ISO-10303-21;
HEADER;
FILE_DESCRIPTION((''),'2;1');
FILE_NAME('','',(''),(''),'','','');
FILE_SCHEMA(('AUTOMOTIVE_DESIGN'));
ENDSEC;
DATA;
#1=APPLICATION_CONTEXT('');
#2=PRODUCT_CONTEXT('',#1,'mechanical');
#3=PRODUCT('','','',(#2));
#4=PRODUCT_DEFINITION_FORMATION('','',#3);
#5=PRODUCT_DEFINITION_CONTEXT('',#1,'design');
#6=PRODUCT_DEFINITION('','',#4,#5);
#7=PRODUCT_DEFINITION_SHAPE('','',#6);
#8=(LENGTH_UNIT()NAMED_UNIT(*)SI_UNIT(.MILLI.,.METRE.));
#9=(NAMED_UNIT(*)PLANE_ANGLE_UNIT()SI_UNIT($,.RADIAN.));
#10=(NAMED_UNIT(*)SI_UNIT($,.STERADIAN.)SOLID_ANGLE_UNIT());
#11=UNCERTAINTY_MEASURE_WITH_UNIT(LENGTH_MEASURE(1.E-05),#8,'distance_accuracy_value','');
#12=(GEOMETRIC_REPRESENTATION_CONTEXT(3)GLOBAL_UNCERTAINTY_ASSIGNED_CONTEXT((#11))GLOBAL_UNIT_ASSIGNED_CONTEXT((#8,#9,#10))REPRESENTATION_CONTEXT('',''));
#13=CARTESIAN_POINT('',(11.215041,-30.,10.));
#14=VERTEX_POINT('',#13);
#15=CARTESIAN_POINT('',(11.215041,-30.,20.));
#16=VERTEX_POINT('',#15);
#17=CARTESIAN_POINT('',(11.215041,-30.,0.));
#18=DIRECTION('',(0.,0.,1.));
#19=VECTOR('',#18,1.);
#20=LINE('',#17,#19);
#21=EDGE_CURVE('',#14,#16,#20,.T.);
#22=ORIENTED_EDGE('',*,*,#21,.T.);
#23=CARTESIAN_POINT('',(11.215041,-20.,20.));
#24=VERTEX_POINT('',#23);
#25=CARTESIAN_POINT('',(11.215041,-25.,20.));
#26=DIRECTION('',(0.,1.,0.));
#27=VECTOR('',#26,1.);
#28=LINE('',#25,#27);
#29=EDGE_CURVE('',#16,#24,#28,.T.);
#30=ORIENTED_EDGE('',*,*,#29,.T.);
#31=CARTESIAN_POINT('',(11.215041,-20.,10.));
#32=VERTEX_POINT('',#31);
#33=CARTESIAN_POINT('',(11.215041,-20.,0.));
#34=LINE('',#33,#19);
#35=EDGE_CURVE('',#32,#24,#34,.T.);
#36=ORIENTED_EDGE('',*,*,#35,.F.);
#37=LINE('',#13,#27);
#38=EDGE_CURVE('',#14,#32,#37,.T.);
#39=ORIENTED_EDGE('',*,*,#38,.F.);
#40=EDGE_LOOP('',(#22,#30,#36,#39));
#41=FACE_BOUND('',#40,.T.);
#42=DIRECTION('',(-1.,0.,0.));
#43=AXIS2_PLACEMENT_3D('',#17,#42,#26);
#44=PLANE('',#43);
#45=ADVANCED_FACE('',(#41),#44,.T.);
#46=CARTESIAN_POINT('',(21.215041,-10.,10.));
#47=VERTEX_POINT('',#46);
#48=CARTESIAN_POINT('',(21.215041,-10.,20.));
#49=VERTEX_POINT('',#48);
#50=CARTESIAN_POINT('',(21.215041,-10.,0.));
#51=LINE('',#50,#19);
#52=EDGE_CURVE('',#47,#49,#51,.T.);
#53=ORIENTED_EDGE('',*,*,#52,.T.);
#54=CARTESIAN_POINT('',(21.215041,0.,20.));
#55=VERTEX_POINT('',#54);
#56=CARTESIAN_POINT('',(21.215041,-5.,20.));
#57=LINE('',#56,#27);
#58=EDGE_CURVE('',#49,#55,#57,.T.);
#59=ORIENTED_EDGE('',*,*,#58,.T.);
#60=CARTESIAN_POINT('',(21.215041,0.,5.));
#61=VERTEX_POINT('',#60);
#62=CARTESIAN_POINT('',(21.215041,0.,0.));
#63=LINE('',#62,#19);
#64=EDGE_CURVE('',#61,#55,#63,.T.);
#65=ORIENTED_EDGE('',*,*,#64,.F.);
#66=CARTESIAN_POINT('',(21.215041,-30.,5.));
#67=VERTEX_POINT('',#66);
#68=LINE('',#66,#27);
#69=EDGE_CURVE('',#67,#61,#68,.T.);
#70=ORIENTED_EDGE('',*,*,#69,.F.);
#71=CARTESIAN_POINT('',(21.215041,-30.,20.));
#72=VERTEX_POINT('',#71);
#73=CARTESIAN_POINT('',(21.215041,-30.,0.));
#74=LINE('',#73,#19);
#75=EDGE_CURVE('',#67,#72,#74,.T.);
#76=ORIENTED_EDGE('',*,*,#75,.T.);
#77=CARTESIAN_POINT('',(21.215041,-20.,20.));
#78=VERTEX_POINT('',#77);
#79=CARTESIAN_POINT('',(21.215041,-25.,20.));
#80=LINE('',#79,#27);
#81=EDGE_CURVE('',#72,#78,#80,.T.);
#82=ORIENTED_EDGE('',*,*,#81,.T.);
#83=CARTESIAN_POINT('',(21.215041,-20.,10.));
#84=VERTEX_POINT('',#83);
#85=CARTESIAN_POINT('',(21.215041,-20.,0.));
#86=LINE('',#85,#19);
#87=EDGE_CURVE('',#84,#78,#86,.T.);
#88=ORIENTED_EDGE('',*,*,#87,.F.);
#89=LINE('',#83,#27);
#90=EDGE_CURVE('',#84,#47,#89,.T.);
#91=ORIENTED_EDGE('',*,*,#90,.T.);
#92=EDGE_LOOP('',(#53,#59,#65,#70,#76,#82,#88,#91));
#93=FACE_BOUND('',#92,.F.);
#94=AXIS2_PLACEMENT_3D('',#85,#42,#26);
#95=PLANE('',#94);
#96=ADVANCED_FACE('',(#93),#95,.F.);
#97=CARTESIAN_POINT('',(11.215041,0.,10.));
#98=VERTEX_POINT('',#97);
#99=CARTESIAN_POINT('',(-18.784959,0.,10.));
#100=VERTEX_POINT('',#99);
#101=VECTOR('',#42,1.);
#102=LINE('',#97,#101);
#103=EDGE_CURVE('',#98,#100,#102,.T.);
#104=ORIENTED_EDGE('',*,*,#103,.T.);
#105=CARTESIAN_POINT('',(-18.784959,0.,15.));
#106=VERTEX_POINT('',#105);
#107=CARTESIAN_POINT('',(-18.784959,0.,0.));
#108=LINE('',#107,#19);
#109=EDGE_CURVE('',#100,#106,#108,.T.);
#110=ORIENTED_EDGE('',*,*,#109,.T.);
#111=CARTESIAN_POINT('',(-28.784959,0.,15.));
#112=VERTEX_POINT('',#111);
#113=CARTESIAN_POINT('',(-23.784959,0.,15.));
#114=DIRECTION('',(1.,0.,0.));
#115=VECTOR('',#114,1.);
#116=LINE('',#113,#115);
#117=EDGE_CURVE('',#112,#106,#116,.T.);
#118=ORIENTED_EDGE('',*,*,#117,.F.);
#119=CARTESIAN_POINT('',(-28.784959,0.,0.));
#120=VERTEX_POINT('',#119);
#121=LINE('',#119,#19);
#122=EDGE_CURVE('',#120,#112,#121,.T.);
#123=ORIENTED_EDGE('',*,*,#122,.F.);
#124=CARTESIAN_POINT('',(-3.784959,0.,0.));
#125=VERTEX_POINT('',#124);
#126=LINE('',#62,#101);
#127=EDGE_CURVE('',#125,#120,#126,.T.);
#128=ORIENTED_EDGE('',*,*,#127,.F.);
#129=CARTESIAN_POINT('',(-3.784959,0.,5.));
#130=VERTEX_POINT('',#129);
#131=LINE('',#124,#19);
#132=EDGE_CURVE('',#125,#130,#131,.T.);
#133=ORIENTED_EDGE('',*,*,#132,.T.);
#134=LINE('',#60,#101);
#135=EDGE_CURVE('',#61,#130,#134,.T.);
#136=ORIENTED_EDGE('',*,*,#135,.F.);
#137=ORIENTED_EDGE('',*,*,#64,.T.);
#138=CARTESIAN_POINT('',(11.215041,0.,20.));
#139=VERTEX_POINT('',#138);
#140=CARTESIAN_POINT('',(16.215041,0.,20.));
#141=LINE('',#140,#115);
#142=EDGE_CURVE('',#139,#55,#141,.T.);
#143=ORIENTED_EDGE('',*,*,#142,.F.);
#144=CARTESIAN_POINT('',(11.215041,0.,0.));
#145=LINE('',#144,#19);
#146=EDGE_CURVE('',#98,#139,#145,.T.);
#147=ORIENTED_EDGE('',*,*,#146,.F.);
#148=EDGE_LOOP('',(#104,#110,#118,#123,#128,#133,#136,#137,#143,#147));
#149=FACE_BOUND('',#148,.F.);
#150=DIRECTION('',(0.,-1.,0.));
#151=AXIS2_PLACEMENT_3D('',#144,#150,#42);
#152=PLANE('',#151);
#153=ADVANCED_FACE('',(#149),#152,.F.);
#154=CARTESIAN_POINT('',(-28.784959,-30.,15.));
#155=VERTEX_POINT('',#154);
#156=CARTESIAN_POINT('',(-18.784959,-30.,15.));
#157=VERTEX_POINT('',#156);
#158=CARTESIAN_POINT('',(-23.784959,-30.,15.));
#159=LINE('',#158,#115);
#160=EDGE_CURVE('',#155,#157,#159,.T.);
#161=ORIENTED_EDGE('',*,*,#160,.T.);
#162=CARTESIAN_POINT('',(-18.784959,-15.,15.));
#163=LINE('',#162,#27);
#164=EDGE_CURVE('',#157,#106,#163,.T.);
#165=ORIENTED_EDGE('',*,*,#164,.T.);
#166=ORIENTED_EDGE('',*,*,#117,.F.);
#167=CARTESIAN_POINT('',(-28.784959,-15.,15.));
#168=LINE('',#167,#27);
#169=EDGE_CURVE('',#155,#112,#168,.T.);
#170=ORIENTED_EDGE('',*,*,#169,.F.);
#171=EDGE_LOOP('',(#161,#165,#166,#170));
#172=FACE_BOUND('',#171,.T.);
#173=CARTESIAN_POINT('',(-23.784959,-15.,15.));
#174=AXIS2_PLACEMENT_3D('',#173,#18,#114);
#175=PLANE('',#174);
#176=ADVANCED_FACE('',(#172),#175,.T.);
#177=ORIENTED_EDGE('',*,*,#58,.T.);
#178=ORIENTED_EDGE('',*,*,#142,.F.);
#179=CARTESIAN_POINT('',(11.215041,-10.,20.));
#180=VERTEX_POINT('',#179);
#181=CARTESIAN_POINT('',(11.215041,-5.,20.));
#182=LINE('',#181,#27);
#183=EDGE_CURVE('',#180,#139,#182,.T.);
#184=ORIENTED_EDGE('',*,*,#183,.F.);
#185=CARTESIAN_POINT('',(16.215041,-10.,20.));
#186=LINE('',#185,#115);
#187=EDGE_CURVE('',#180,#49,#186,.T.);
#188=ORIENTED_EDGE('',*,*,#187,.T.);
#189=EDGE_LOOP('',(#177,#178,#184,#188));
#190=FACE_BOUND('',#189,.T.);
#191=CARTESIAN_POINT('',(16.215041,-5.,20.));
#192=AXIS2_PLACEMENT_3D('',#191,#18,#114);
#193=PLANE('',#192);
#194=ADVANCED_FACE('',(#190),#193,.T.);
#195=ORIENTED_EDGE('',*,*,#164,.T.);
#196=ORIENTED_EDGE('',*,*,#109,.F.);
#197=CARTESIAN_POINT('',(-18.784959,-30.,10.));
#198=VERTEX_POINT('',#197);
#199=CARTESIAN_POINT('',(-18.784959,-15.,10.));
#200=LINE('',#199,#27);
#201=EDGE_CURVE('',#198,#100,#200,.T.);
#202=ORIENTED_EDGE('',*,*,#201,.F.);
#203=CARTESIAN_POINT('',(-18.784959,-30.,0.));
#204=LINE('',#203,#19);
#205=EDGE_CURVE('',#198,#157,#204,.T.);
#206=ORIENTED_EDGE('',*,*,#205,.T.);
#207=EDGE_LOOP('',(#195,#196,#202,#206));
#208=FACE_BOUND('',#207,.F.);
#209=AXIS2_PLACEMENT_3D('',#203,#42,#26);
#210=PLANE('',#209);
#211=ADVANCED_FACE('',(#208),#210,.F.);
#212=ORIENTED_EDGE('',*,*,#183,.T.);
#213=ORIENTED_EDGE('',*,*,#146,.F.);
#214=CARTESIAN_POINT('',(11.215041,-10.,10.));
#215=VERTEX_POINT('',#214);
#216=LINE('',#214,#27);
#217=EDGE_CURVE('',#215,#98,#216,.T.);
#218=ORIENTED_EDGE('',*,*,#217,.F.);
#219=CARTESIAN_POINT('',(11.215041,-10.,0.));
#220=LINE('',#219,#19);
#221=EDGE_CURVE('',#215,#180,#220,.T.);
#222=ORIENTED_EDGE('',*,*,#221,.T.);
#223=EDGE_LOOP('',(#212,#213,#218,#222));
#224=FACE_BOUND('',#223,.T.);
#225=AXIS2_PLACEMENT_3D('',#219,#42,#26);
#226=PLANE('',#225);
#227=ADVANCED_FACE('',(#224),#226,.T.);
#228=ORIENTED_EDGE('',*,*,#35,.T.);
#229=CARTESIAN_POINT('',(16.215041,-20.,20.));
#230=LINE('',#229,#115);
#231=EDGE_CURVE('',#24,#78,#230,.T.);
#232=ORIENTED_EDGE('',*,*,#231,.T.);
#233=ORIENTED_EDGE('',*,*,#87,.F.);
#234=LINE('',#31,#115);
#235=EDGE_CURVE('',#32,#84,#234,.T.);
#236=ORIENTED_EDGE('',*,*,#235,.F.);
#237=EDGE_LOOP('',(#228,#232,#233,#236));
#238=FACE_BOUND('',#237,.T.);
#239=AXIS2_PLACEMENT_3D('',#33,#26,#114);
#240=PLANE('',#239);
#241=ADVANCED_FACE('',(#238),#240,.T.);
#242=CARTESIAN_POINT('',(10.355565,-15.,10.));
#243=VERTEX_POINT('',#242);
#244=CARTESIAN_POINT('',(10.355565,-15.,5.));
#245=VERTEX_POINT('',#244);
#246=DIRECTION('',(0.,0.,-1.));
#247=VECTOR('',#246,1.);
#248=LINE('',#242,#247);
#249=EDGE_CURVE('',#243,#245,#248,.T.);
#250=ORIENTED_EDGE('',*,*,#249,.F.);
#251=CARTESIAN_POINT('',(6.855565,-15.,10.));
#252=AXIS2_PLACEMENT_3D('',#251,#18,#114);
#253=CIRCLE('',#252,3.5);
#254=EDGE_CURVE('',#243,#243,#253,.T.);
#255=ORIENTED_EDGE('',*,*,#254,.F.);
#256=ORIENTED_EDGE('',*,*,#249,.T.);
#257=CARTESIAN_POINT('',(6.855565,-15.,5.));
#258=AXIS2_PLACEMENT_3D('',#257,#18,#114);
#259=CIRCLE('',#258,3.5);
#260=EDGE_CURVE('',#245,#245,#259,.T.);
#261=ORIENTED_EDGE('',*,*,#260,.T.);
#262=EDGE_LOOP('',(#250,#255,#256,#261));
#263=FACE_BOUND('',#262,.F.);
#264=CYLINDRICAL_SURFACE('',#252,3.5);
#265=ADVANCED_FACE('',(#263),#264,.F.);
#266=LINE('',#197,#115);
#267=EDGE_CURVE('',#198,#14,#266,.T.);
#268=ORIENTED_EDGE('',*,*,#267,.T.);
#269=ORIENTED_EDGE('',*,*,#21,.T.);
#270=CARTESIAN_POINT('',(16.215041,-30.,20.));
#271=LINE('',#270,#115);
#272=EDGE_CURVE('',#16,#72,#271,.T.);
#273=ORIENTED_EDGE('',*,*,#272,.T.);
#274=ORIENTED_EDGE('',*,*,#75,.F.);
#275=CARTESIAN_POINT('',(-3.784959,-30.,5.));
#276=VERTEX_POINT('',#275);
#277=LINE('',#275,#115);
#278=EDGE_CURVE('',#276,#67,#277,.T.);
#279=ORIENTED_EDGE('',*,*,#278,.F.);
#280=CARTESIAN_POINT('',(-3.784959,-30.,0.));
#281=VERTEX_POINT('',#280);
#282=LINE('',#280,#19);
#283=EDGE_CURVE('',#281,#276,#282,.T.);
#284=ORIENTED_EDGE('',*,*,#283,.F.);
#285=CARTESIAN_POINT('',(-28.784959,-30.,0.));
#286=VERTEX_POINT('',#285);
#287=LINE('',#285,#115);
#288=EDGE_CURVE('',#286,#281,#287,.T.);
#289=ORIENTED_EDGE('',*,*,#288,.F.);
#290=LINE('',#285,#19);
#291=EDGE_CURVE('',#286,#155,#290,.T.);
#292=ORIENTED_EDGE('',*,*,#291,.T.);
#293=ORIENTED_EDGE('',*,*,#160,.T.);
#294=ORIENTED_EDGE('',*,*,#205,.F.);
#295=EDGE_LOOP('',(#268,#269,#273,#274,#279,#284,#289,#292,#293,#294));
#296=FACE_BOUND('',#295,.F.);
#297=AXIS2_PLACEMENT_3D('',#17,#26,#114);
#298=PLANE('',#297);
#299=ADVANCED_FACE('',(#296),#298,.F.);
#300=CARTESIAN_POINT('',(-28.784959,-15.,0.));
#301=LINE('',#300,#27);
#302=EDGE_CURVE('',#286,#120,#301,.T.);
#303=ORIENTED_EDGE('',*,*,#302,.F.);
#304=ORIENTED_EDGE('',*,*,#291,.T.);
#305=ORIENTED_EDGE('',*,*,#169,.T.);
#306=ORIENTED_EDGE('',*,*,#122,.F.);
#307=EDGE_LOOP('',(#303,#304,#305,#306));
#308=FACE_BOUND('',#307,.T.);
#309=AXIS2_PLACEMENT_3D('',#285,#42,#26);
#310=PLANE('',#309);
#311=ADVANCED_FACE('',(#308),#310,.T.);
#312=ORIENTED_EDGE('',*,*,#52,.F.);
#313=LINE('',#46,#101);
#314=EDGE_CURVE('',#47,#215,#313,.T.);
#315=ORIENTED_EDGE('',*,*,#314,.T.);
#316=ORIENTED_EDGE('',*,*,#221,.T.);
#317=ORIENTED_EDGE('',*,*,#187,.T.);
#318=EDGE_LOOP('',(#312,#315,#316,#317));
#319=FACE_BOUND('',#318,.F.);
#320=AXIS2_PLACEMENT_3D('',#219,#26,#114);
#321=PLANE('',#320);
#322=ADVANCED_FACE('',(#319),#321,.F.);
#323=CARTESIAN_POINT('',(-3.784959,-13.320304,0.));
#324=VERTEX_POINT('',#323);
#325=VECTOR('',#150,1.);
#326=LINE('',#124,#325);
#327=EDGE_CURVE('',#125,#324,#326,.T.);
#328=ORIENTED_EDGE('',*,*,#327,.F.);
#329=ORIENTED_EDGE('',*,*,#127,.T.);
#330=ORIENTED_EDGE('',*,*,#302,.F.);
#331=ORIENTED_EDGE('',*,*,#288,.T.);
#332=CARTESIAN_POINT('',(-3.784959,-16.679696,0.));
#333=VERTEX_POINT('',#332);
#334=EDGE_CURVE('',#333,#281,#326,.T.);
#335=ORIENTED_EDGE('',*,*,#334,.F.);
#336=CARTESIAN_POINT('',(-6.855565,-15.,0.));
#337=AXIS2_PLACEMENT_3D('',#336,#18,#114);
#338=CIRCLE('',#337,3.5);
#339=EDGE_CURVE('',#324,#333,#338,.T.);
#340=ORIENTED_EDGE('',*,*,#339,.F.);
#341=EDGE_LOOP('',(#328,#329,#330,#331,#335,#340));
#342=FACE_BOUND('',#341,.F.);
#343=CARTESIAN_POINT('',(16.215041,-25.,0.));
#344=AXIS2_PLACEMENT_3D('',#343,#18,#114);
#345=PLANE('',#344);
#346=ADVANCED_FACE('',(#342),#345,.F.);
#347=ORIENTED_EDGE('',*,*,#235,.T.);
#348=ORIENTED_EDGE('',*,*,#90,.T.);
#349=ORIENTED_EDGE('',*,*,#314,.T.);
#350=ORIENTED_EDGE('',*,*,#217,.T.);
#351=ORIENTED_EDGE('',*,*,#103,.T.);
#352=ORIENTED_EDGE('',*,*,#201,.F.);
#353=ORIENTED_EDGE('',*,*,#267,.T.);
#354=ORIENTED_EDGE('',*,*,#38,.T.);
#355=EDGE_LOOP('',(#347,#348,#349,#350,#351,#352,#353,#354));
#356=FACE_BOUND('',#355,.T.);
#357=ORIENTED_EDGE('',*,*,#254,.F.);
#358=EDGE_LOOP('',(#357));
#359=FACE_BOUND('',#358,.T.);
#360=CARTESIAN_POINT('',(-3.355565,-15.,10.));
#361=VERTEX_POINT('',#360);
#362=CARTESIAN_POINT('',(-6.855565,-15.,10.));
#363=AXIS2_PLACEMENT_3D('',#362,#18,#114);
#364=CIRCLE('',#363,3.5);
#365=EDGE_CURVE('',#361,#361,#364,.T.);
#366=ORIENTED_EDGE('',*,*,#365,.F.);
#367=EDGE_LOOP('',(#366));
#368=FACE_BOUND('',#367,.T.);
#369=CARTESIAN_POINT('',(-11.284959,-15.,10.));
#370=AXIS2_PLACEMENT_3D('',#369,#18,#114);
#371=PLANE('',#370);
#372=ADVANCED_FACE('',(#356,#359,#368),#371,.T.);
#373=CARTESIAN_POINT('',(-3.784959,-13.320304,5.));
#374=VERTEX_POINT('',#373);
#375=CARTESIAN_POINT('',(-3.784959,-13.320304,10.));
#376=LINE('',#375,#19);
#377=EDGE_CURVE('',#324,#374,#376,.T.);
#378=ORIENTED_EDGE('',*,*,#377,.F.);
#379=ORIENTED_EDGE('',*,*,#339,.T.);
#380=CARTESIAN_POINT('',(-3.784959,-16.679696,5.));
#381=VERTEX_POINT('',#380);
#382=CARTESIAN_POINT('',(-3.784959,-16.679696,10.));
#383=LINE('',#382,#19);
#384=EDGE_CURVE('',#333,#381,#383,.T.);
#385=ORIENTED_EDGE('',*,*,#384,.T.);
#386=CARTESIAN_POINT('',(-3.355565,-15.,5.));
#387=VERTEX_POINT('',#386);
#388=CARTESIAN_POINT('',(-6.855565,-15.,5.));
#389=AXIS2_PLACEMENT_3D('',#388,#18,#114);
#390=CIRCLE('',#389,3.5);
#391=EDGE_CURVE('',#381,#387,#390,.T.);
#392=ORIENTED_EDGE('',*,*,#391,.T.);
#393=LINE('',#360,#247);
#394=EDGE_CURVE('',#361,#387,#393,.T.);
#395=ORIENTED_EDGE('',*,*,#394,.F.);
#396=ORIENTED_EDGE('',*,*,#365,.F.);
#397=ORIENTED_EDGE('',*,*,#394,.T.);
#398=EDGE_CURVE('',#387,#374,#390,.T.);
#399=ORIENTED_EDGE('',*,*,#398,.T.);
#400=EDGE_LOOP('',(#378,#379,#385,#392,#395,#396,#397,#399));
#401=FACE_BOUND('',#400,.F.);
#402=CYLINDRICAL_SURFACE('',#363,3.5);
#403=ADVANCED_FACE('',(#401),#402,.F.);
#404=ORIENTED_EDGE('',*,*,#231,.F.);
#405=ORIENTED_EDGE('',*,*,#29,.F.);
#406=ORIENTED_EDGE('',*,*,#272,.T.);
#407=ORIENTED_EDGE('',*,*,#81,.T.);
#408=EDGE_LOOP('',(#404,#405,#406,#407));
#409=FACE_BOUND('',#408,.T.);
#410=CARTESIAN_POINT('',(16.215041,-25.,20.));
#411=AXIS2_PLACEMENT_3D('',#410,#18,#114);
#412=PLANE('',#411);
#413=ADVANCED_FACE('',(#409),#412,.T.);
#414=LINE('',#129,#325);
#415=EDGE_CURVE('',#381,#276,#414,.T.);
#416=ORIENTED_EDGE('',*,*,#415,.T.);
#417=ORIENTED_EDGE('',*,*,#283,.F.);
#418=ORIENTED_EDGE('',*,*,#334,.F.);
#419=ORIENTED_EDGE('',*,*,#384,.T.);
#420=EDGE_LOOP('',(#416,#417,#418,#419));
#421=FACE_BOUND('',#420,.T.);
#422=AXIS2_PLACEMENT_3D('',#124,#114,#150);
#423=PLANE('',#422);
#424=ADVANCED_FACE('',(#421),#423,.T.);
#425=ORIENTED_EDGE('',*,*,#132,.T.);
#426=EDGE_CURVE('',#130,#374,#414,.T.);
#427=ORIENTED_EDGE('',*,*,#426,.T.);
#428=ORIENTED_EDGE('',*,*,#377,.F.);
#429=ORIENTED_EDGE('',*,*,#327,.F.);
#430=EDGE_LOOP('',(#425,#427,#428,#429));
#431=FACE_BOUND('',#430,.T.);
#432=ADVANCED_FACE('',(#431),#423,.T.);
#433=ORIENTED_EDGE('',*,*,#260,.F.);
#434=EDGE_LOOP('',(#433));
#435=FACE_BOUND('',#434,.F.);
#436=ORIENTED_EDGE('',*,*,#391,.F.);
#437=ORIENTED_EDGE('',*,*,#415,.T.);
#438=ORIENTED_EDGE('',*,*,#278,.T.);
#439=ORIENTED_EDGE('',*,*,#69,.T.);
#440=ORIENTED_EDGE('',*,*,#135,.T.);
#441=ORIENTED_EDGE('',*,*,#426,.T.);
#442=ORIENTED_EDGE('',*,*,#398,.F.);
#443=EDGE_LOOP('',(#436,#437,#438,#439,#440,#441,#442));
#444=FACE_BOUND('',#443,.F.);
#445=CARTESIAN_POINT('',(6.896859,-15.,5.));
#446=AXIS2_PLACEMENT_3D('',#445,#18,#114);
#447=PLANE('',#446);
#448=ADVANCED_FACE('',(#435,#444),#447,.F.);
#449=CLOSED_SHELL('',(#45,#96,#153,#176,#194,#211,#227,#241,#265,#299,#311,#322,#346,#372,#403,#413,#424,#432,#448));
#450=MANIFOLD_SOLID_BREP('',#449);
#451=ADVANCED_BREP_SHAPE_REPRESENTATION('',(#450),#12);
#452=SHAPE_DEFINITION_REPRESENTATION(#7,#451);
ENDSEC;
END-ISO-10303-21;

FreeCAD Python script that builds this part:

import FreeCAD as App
import Part
import Sketcher

V = App.Vector


def add_polygon(sketch, points):
    """Adds a closed chain of lines whose ends are joined by coincident constraints."""
    first, n = sketch.GeometryCount, len(points)
    for a, b in zip(points, points[1:] + points[:1]):
        sketch.addGeometry(Part.LineSegment(App.Vector(*a, 0), App.Vector(*b, 0)), False)
    for i in range(n):
        sketch.addConstraint(Sketcher.Constraint("Coincident", first + i, 2, first + (i + 1) % n, 1))

doc = App.newDocument("Part")
body = doc.addObject("PartDesign::Body", "Body")

# Sketch on XY plane
sketch1 = doc.addObject("Sketcher::SketchObject", "Sketch")
body.addObject(sketch1)
sketch1.AttachmentSupport = (doc.XY_Plane, [""])
sketch1.MapMode = "FlatFace"
add_polygon(sketch1, [(-29, 0), (-29, -30), (-19, -30), (-19, 0)])  # lines 0-3
sketch1.addConstraint([
    Sketcher.Constraint("Vertical", 0),
    Sketcher.Constraint("Horizontal", 1),
    Sketcher.Constraint("Vertical", 2),
    Sketcher.Constraint("Horizontal", 3),
    Sketcher.Constraint("PointOnObject", 2, 2, -1),
    Sketcher.Constraint("DistanceX", 1, 1, 1, 2, 10.0),
    Sketcher.Constraint("DistanceY", 0, 2, 0, 1, 30.0),
    Sketcher.Constraint("DistanceX", 0, 2, -1, 1, 28.784959),
])
pad1 = doc.addObject("PartDesign::Pad", "Pad")
body.addObject(pad1)
pad1.Profile = sketch1
pad1.Length = 15

# Sketch on XY plane
sketch2 = doc.addObject("Sketcher::SketchObject", "Sketch001")
body.addObject(sketch2)
sketch2.AttachmentSupport = (doc.XY_Plane, [""])
sketch2.MapMode = "FlatFace"
add_polygon(sketch2, [(-19, 0), (-19, -30), (11, -30), (11, -20), (21, -20), (21, -10), (11, -10), (11, 0)])  # lines 0-7
sketch2.addConstraint([
    Sketcher.Constraint("Vertical", 0),
    Sketcher.Constraint("Horizontal", 1),
    Sketcher.Constraint("Vertical", 2),
    Sketcher.Constraint("Horizontal", 3),
    Sketcher.Constraint("Vertical", 4),
    Sketcher.Constraint("Horizontal", 5),
    Sketcher.Constraint("Vertical", 6),
    Sketcher.Constraint("Horizontal", 7),
    Sketcher.Constraint("PointOnObject", 6, 2, -1),
    Sketcher.Constraint("Vertical", 2, 2, 5, 2),
    Sketcher.Constraint("Equal", 7, 0),
    Sketcher.Constraint("Equal", 5, 2),
    Sketcher.Constraint("Equal", 2, 4),
    Sketcher.Constraint("Equal", 4, 6),
    Sketcher.Constraint("DistanceX", 1, 1, 1, 2, 30.0),
    Sketcher.Constraint("DistanceX", 0, 2, -1, 1, 18.784959),
])
pad2 = doc.addObject("PartDesign::Pad", "Pad001")
body.addObject(pad2)
pad2.Profile = sketch2
pad2.Length = 10

# Sketch on XY plane
sketch3 = doc.addObject("Sketcher::SketchObject", "Sketch002")
body.addObject(sketch3)
sketch3.AttachmentSupport = (doc.XY_Plane, [""])
sketch3.MapMode = "FlatFace"
add_polygon(sketch3, [(11, -20), (11, -30), (21, -30), (21, -20)])  # lines 0-3
add_polygon(sketch3, [(11, 0), (11, -10), (21, -10), (21, 0)])  # lines 4-7
sketch3.addConstraint([
    Sketcher.Constraint("Vertical", 0),
    Sketcher.Constraint("Horizontal", 1),
    Sketcher.Constraint("Vertical", 2),
    Sketcher.Constraint("Horizontal", 3),
    Sketcher.Constraint("Vertical", 4),
    Sketcher.Constraint("Horizontal", 5),
    Sketcher.Constraint("Vertical", 6),
    Sketcher.Constraint("Horizontal", 7),
    Sketcher.Constraint("PointOnObject", 6, 2, -1),
    Sketcher.Constraint("Vertical", 3, 2, 4, 2),
    Sketcher.Constraint("Vertical", 2, 2, 5, 2),
    Sketcher.Constraint("Equal", 7, 0),
    Sketcher.Constraint("Equal", 2, 4),
    Sketcher.Constraint("DistanceX", 1, 1, 1, 2, 10.0),
    Sketcher.Constraint("DistanceY", 0, 2, -1, 1, 30.0),
    Sketcher.Constraint("DistanceX", -1, 1, 0, 2, 11.215041),
])
pad3 = doc.addObject("PartDesign::Pad", "Pad002")
body.addObject(pad3)
pad3.Profile = sketch3
pad3.Length = 20

# Sketch on XY plane
sketch4 = doc.addObject("Sketcher::SketchObject", "Sketch003")
body.addObject(sketch4)
sketch4.AttachmentSupport = (doc.XY_Plane, [""])
sketch4.MapMode = "FlatFace"
add_polygon(sketch4, [(-4, 0), (-4, -30), (21, -30), (21, 0)])  # lines 0-3
sketch4.addConstraint([
    Sketcher.Constraint("Vertical", 0),
    Sketcher.Constraint("Horizontal", 1),
    Sketcher.Constraint("Vertical", 2),
    Sketcher.Constraint("Horizontal", 3),
    Sketcher.Constraint("PointOnObject", 2, 2, -1),
    Sketcher.Constraint("DistanceX", 1, 1, 1, 2, 25.0),
    Sketcher.Constraint("DistanceY", 0, 2, 0, 1, 30.0),
    Sketcher.Constraint("DistanceX", 0, 2, -1, 1, 3.784959),
])
pocket1 = doc.addObject("PartDesign::Pocket", "Pocket")
body.addObject(pocket1)
pocket1.Profile = sketch4
pocket1.Length = 5
pocket1.Reversed = True

# Sketch on XY plane
sketch5 = doc.addObject("Sketcher::SketchObject", "Sketch004")
body.addObject(sketch5)
sketch5.AttachmentSupport = (doc.XY_Plane, [""])
sketch5.MapMode = "FlatFace"
sketch5.AttachmentOffset = App.Placement(V(0, 0, 10), App.Rotation())
sketch5.addGeometry([
    Part.Circle(V(6.9, -15, 0), V(0, 0, 1), 3.5),
    Part.Circle(V(-6.9, -15, 0), V(0, 0, 1), 3.5),
], False)
sketch5.addConstraint([
    Sketcher.Constraint("Equal", 0, 1),
    Sketcher.Constraint("Symmetric", 0, 3, 1, 3, -2),
    Sketcher.Constraint("Diameter", 0, 7.0),
    Sketcher.Constraint("DistanceY", 0, 3, -1, 1, 15.0),
    Sketcher.Constraint("DistanceX", 1, 3, 0, 3, 13.71113),
])
pocket2 = doc.addObject("PartDesign::Pocket", "Pocket001")
body.addObject(pocket2)
pocket2.Profile = sketch5
pocket2.Length = 10

doc.recompute()
